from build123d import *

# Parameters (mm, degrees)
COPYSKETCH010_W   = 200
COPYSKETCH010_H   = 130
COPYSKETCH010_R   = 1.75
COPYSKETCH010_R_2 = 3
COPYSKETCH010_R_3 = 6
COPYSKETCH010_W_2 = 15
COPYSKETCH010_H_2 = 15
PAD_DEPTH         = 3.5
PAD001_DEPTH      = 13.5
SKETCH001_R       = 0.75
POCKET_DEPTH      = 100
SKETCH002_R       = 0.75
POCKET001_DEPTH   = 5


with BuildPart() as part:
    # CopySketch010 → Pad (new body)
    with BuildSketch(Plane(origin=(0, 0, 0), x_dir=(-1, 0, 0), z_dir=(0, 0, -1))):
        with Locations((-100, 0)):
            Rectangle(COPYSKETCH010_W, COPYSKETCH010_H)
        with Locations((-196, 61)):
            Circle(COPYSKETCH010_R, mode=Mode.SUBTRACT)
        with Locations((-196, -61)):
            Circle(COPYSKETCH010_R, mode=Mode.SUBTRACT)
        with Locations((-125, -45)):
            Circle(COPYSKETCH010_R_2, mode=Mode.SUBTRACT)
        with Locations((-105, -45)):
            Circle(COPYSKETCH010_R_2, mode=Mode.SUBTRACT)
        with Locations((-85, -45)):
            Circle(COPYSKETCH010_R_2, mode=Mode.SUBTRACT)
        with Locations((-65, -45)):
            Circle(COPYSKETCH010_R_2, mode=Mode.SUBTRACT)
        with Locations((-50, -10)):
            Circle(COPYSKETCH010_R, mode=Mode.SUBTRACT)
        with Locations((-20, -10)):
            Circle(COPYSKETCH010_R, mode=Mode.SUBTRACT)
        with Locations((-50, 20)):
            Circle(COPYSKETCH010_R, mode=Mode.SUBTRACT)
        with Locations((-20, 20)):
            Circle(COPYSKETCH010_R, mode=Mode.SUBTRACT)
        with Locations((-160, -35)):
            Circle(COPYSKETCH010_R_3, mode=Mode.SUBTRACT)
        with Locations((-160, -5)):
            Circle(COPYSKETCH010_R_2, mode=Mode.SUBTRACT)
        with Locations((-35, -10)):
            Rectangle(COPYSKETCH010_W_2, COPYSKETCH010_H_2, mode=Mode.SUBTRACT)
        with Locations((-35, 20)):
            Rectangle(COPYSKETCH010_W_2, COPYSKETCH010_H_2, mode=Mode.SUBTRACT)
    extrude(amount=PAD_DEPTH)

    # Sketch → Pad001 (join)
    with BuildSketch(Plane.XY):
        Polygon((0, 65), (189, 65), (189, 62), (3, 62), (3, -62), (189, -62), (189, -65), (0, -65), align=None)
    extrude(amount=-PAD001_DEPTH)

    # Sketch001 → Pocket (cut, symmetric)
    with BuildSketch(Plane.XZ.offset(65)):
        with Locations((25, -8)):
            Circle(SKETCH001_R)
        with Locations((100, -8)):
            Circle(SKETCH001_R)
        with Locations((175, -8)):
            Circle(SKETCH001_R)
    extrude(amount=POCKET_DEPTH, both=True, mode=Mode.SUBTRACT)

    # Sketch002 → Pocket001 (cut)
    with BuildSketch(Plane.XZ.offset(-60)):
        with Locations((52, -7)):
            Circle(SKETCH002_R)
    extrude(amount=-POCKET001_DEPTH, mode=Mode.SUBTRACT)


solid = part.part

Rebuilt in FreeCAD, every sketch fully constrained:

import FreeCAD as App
import Part
import Sketcher

V = App.Vector
Q = App.Units.Quantity

doc = App.newDocument("Part")
body = doc.addObject("PartDesign::Body", "Body")

sketch1 = body.newObject("Sketcher::SketchObject", "Sketch")
sketch1.AttachmentSupport = (doc.getObject("XY_Plane"), [""])
sketch1.MapMode = "FlatFace"
sketch1.addGeometry([
    Part.LineSegment(V(200, 65, 0), V(200, -65, 0)),
    Part.LineSegment(V(200, -65, 0), V(0, -65, 0)),
    Part.LineSegment(V(0, -65, 0), V(0, 65, 0)),
    Part.LineSegment(V(0, 65, 0), V(200, 65, 0)),
    Part.Circle(V(196, -61, 0), V(0, 0, 1), 1.8),
    Part.Circle(V(160, -35, 0), V(0, 0, 1), 6),
    Part.Circle(V(125, -45, 0), V(0, 0, 1), 3),
    Part.Circle(V(160, -5, 0), V(0, 0, 1), 3),
    Part.Circle(V(105, -45, 0), V(0, 0, 1), 3),
    Part.Circle(V(85, -45, 0), V(0, 0, 1), 3),
    Part.Circle(V(65, -45, 0), V(0, 0, 1), 3),
    Part.Circle(V(50, -10, 0), V(0, 0, 1), 1.8),
    Part.LineSegment(V(27.5, -17.5, 0), V(42.5, -17.5, 0)),
    Part.LineSegment(V(42.5, -17.5, 0), V(42.5, -2.5, 0)),
    Part.LineSegment(V(42.5, -2.5, 0), V(27.5, -2.5, 0)),
    Part.LineSegment(V(27.5, -2.5, 0), V(27.5, -17.5, 0)),
    Part.Circle(V(20, -10, 0), V(0, 0, 1), 1.8),
    Part.Circle(V(196, 61, 0), V(0, 0, 1), 1.8),
    Part.Circle(V(50, 20, 0), V(0, 0, 1), 1.8),
    Part.LineSegment(V(27.5, 12.5, 0), V(42.5, 12.5, 0)),
    Part.LineSegment(V(42.5, 12.5, 0), V(42.5, 27.5, 0)),
    Part.LineSegment(V(42.5, 27.5, 0), V(27.5, 27.5, 0)),
    Part.LineSegment(V(27.5, 27.5, 0), V(27.5, 12.5, 0)),
    Part.Circle(V(20, 20, 0), V(0, 0, 1), 1.8),
], False)
sketch1.addConstraint([
    Sketcher.Constraint("Coincident", 0, 2, 1, 1),
    Sketcher.Constraint("Coincident", 1, 2, 2, 1),
    Sketcher.Constraint("Coincident", 2, 2, 3, 1),
    Sketcher.Constraint("Coincident", 3, 2, 0, 1),
    Sketcher.Constraint("Coincident", 12, 2, 13, 1),
    Sketcher.Constraint("Coincident", 13, 2, 14, 1),
    Sketcher.Constraint("Coincident", 14, 2, 15, 1),
    Sketcher.Constraint("Coincident", 15, 2, 12, 1),
    Sketcher.Constraint("Coincident", 19, 2, 20, 1),
    Sketcher.Constraint("Coincident", 20, 2, 21, 1),
    Sketcher.Constraint("Coincident", 21, 2, 22, 1),
    Sketcher.Constraint("Coincident", 22, 2, 19, 1),
    Sketcher.Constraint("Vertical", 0),
    Sketcher.Constraint("Horizontal", 1),
    Sketcher.Constraint("Vertical", 2),
    Sketcher.Constraint("Horizontal", 3),
    Sketcher.Constraint("Horizontal", 12),
    Sketcher.Constraint("Vertical", 13),
    Sketcher.Constraint("Horizontal", 14),
    Sketcher.Constraint("Vertical", 15),
    Sketcher.Constraint("Horizontal", 19),
    Sketcher.Constraint("Vertical", 20),
    Sketcher.Constraint("Horizontal", 21),
    Sketcher.Constraint("Vertical", 22),
    Sketcher.Constraint("Equal", 6, 7),
    Sketcher.Constraint("Equal", 7, 8),
    Sketcher.Constraint("Equal", 8, 9),
    Sketcher.Constraint("Equal", 9, 10),
    Sketcher.Constraint("Equal", 4, 11),
    Sketcher.Constraint("Equal", 11, 16),
    Sketcher.Constraint("Equal", 16, 17),
    Sketcher.Constraint("Equal", 17, 18),
    Sketcher.Constraint("Equal", 18, 23),
    Sketcher.Constraint("Symmetric", 1, 2, 2, 2, -1, 1),
    Sketcher.Constraint("Symmetric", 4, 3, 17, 3, -1),
    Sketcher.Constraint("Horizontal", 6, 3, 8, 3),
    Sketcher.Constraint("Horizontal", 8, 3, 9, 3),
    Sketcher.Constraint("Horizontal", 9, 3, 10, 3),
    Sketcher.Constraint("Horizontal", 11, 3, 16, 3),
    Sketcher.Constraint("Horizontal", 18, 3, 23, 3),
    Sketcher.Constraint("Vertical", 5, 3, 7, 3),
    Sketcher.Constraint("Vertical", 11, 3, 18, 3),
    Sketcher.Constraint("Vertical", 16, 3, 23, 3),
    Sketcher.Constraint("Vertical", 13, 2, 19, 2),
    Sketcher.Constraint("Vertical", 15, 2, 21, 2),
    Sketcher.Constraint("Equal", 21, 13),
    Sketcher.Constraint("Equal", 15, 20),
    Sketcher.Constraint("Diameter", 5, Q("12 mm")),
    Sketcher.Constraint("Diameter", 6, Q("6 mm")),
    Sketcher.Constraint("Diameter", 4, Q("3.5 mm")),
    Sketcher.Constraint("DistanceX", 1, 2, 1, 1, Q("200 mm")),
    Sketcher.Constraint("DistanceX", 12, 1, 12, 2, Q("15 mm")),
    Sketcher.Constraint("DistanceY", 0, 2, 0, 1, Q("130 mm")),
    Sketcher.Constraint("DistanceX", -1, 1, 4, 3, Q("196 mm")),
    Sketcher.Constraint("DistanceY", 4, 3, -1, 1, Q("61 mm")),
    Sketcher.Constraint("DistanceX", -1, 1, 5, 3, Q("160 mm")),
    Sketcher.Constraint("DistanceY", 5, 3, -1, 1, Q("35 mm")),
    Sketcher.Constraint("DistanceX", -1, 1, 6, 3, Q("125 mm")),
    Sketcher.Constraint("DistanceY", 6, 3, -1, 1, Q("45 mm")),
    Sketcher.Constraint("DistanceY", 7, 3, -1, 1, Q("5 mm")),
    Sketcher.Constraint("DistanceX", -1, 1, 8, 3, Q("105 mm")),
    Sketcher.Constraint("DistanceX", -1, 1, 9, 3, Q("85 mm")),
    Sketcher.Constraint("DistanceX", -1, 1, 10, 3, Q("65 mm")),
    Sketcher.Constraint("DistanceX", -1, 1, 11, 3, Q("50 mm")),
    Sketcher.Constraint("DistanceY", 11, 3, -1, 1, Q("10 mm")),
    Sketcher.Constraint("DistanceX", -1, 1, 16, 3, Q("20 mm")),
    Sketcher.Constraint("DistanceY", -1, 1, 18, 3, Q("20 mm")),
    Sketcher.Constraint("DistanceY", 13, 2, 19, 2, Q("15 mm")),
    Sketcher.Constraint("DistanceX", -1, 1, 12, 2, Q("42.5 mm")),
    Sketcher.Constraint("DistanceY", 12, 2, -1, 1, Q("17.5 mm")),
])
pad1 = body.newObject("PartDesign::Pad", "Pad")
pad1.Profile = sketch1
pad1.Length = 3.5
pad1.Reversed = True

sketch2 = body.newObject("Sketcher::SketchObject", "Sketch001")
sketch2.AttachmentSupport = (doc.getObject("XY_Plane"), [""])
sketch2.MapMode = "FlatFace"
sketch2.addGeometry([
    Part.LineSegment(V(189, 65, 0), V(0, 65, 0)),
    Part.LineSegment(V(0, 65, 0), V(0, -65, 0)),
    Part.LineSegment(V(0, -65, 0), V(189, -65, 0)),
    Part.LineSegment(V(189, -65, 0), V(189, -62, 0)),
    Part.LineSegment(V(189, -62, 0), V(3, -62, 0)),
    Part.LineSegment(V(3, -62, 0), V(3, 62, 0)),
    Part.LineSegment(V(3, 62, 0), V(189, 62, 0)),
    Part.LineSegment(V(189, 62, 0), V(189, 65, 0)),
], False)
sketch2.addConstraint([
    Sketcher.Constraint("Coincident", 0, 2, 1, 1),
    Sketcher.Constraint("Coincident", 1, 2, 2, 1),
    Sketcher.Constraint("Coincident", 2, 2, 3, 1),
    Sketcher.Constraint("Coincident", 3, 2, 4, 1),
    Sketcher.Constraint("Coincident", 4, 2, 5, 1),
    Sketcher.Constraint("Coincident", 5, 2, 6, 1),
    Sketcher.Constraint("Coincident", 6, 2, 7, 1),
    Sketcher.Constraint("Coincident", 7, 2, 0, 1),
    Sketcher.Constraint("Horizontal", 0),
    Sketcher.Constraint("Vertical", 1),
    Sketcher.Constraint("Horizontal", 2),
    Sketcher.Constraint("Vertical", 3),
    Sketcher.Constraint("Horizontal", 4),
    Sketcher.Constraint("Vertical", 5),
    Sketcher.Constraint("Horizontal", 6),
    Sketcher.Constraint("Vertical", 7),
    Sketcher.Constraint("Symmetric", 0, 2, 1, 2, -1, 1),
    Sketcher.Constraint("Symmetric", 3, 2, 6, 2, -1),
    Sketcher.Constraint("DistanceX", 0, 2, 0, 1, Q("189 mm")),
    Sketcher.Constraint("DistanceX", 4, 2, 4, 1, Q("186 mm")),
    Sketcher.Constraint("DistanceY", 1, 2, 1, 1, Q("130 mm")),
    Sketcher.Constraint("DistanceY", 3, 1, 3, 2, Q("3 mm")),
])
pad2 = body.newObject("PartDesign::Pad", "Pad001")
pad2.Profile = sketch2
pad2.Length = 13.5
pad2.Reversed = True

sketch3 = body.newObject("Sketcher::SketchObject", "Sketch002")
sketch3.AttachmentSupport = (doc.getObject("XZ_Plane"), [""])
sketch3.MapMode = "FlatFace"
sketch3.AttachmentOffset = App.Placement(V(0, 0, 65), App.Rotation())
sketch3.addGeometry([
    Part.Circle(V(25, -8, 0), V(0, 0, 1), 0.8),
    Part.Circle(V(100, -8, 0), V(0, 0, 1), 0.8),
    Part.Circle(V(175, -8, 0), V(0, 0, 1), 0.8),
], False)
sketch3.addConstraint([
    Sketcher.Constraint("Equal", 0, 1),
    Sketcher.Constraint("Equal", 1, 2),
    Sketcher.Constraint("Horizontal", 0, 3, 1, 3),
    Sketcher.Constraint("Horizontal", 1, 3, 2, 3),
    Sketcher.Constraint("Diameter", 0, Q("1.5 mm")),
    Sketcher.Constraint("DistanceX", -1, 1, 0, 3, Q("25 mm")),
    Sketcher.Constraint("DistanceY", 0, 3, -1, 1, Q("8 mm")),
    Sketcher.Constraint("DistanceX", -1, 1, 1, 3, Q("100 mm")),
    Sketcher.Constraint("DistanceX", -1, 1, 2, 3, Q("175 mm")),
])
pocket1 = body.newObject("PartDesign::Pocket", "Pocket")
pocket1.Profile = sketch3
pocket1.Length = 200
pocket1.Midplane = True

sketch4 = body.newObject("Sketcher::SketchObject", "Sketch003")
sketch4.AttachmentSupport = (doc.getObject("XZ_Plane"), [""])
sketch4.MapMode = "FlatFace"
sketch4.AttachmentOffset = App.Placement(V(0, 0, -60), App.Rotation())
sketch4.addGeometry(Part.Circle(V(52, -7, 0), V(0, 0, 1), 0.8), False)
sketch4.addConstraint([
    Sketcher.Constraint("Diameter", 0, Q("1.5 mm")),
    Sketcher.Constraint("DistanceX", -1, 1, 0, 3, Q("52 mm")),
    Sketcher.Constraint("DistanceY", 0, 3, -1, 1, Q("7 mm")),
])
pocket2 = body.newObject("PartDesign::Pocket", "Pocket001")
pocket2.Profile = sketch4
pocket2.Length = 5

doc.recompute()
